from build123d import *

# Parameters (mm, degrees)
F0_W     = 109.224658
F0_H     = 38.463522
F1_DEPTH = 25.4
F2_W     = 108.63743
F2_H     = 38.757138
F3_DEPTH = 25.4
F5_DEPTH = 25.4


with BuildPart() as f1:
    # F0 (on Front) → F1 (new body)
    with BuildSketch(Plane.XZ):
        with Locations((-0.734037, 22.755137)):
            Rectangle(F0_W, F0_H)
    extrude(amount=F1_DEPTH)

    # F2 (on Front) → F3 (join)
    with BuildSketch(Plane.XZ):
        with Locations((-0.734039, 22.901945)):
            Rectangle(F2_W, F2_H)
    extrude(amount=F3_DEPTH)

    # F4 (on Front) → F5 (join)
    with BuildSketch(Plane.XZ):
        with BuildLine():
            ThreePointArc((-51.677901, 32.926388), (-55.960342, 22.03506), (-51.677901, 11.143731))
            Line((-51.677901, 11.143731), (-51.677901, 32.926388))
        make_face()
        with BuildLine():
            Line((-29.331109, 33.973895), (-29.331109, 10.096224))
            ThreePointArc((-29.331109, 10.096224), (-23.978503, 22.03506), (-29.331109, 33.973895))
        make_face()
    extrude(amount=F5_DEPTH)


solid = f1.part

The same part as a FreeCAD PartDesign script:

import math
import FreeCAD as App
import Part
import Sketcher
from FreeCAD import Vector
Q = App.Units.Quantity


def add_polygon(sketch, points):
    """Adds a closed chain of lines whose ends are joined by coincident constraints."""
    first, n = sketch.GeometryCount, len(points)
    for a, b in zip(points, points[1:] + points[:1]):
        sketch.addGeometry(Part.LineSegment(App.Vector(*a, 0), App.Vector(*b, 0)), False)
    for i in range(n):
        sketch.addConstraint(Sketcher.Constraint("Coincident", first + i, 2, first + (i + 1) % n, 1))

doc = App.newDocument("Part")
body = doc.addObject("PartDesign::Body", "Body")

sketch1 = body.newObject("Sketcher::SketchObject", "Sketch")
sketch1.AttachmentSupport = (doc.getObject("XZ_Plane"), [""])
sketch1.MapMode = "FlatFace"
add_polygon(sketch1, [(-55, 42), (-55, 4), (54, 4), (54, 42)])
sketch1.addConstraint([
    Sketcher.Constraint("Vertical", 0),
    Sketcher.Constraint("Horizontal", 1),
    Sketcher.Constraint("Vertical", 2),
    Sketcher.Constraint("Horizontal", 3),
    Sketcher.Constraint("DistanceX", 1, 1, 1, 2, Q("109.224658 mm")),
    Sketcher.Constraint("DistanceY", 0, 2, 0, 1, Q("38.463522 mm")),
    Sketcher.Constraint("DistanceX", 0, 2, -1, 1, Q("55.346366 mm")),
    Sketcher.Constraint("DistanceY", -1, 1, 0, 2, Q("3.523376 mm")),
])
pad1 = body.newObject("PartDesign::Pad", "Pad")
pad1.Profile = sketch1
pad1.Length = Q("1 in")

sketch2 = body.newObject("Sketcher::SketchObject", "Sketch001")
sketch2.AttachmentSupport = (doc.getObject("XZ_Plane"), [""])
sketch2.MapMode = "FlatFace"
add_polygon(sketch2, [(-55, 42), (-55, 4), (54, 4), (54, 42)])
sketch2.addConstraint([
    Sketcher.Constraint("Vertical", 0),
    Sketcher.Constraint("Horizontal", 1),
    Sketcher.Constraint("Vertical", 2),
    Sketcher.Constraint("Horizontal", 3),
    Sketcher.Constraint("DistanceX", 1, 1, 1, 2, Q("108.63743 mm")),
    Sketcher.Constraint("DistanceY", 0, 2, 0, 1, Q("38.757138 mm")),
    Sketcher.Constraint("DistanceX", 0, 2, -1, 1, Q("55.052754 mm")),
    Sketcher.Constraint("DistanceY", -1, 1, 0, 2, Q("3.523376 mm")),
])
pad2 = body.newObject("PartDesign::Pad", "Pad001")
pad2.Profile = sketch2
pad2.Length = Q("1 in")

sketch3 = body.newObject("Sketcher::SketchObject", "Sketch002")
sketch3.AttachmentSupport = (doc.getObject("XZ_Plane"), [""])
sketch3.MapMode = "FlatFace"
sketch3.addGeometry([
    Part.ArcOfCircle(Part.Circle(Vector(-40, 22, 0), Vector(0, 0, 1), 16), math.radians(137), math.radians(223)),
    Part.LineSegment(Vector(-52, 11, 0), Vector(-52, 33, 0)),
    Part.LineSegment(Vector(-29, 34, 0), Vector(-29, 10, 0)),
    Part.ArcOfCircle(Part.Circle(Vector(-40, 22, 0), Vector(0, 0, 1), 16), math.radians(-48), math.radians(48)),
], False)
sketch3.addConstraint([
    Sketcher.Constraint("Coincident", 0, 1, 1, 2),
    Sketcher.Constraint("Coincident", 1, 1, 0, 2),
    Sketcher.Constraint("Coincident", 2, 1, 3, 2),
    Sketcher.Constraint("Coincident", 3, 1, 2, 2),
    Sketcher.Constraint("Vertical", 1),
    Sketcher.Constraint("Vertical", 2),
    Sketcher.Constraint("Coincident", 3, 3, 0, 3),
    Sketcher.Constraint("Equal", 0, 3),
    Sketcher.Constraint("Radius", 0, Q("15.990919 mm")),
    Sketcher.Constraint("DistanceY", 2, 2, 2, 1, Q("23.877671 mm")),
    Sketcher.Constraint("DistanceX", 0, 1, -1, 1, Q("51.677901 mm")),
    Sketcher.Constraint("DistanceY", 1, 1, 1, 2, Q("21.782657 mm")),
    Sketcher.Constraint("DistanceY", -1, 1, 0, 3, Q("22.035059 mm")),
])
pad3 = body.newObject("PartDesign::Pad", "Pad002")
pad3.Profile = sketch3
pad3.Length = Q("1 in")

doc.recompute()
